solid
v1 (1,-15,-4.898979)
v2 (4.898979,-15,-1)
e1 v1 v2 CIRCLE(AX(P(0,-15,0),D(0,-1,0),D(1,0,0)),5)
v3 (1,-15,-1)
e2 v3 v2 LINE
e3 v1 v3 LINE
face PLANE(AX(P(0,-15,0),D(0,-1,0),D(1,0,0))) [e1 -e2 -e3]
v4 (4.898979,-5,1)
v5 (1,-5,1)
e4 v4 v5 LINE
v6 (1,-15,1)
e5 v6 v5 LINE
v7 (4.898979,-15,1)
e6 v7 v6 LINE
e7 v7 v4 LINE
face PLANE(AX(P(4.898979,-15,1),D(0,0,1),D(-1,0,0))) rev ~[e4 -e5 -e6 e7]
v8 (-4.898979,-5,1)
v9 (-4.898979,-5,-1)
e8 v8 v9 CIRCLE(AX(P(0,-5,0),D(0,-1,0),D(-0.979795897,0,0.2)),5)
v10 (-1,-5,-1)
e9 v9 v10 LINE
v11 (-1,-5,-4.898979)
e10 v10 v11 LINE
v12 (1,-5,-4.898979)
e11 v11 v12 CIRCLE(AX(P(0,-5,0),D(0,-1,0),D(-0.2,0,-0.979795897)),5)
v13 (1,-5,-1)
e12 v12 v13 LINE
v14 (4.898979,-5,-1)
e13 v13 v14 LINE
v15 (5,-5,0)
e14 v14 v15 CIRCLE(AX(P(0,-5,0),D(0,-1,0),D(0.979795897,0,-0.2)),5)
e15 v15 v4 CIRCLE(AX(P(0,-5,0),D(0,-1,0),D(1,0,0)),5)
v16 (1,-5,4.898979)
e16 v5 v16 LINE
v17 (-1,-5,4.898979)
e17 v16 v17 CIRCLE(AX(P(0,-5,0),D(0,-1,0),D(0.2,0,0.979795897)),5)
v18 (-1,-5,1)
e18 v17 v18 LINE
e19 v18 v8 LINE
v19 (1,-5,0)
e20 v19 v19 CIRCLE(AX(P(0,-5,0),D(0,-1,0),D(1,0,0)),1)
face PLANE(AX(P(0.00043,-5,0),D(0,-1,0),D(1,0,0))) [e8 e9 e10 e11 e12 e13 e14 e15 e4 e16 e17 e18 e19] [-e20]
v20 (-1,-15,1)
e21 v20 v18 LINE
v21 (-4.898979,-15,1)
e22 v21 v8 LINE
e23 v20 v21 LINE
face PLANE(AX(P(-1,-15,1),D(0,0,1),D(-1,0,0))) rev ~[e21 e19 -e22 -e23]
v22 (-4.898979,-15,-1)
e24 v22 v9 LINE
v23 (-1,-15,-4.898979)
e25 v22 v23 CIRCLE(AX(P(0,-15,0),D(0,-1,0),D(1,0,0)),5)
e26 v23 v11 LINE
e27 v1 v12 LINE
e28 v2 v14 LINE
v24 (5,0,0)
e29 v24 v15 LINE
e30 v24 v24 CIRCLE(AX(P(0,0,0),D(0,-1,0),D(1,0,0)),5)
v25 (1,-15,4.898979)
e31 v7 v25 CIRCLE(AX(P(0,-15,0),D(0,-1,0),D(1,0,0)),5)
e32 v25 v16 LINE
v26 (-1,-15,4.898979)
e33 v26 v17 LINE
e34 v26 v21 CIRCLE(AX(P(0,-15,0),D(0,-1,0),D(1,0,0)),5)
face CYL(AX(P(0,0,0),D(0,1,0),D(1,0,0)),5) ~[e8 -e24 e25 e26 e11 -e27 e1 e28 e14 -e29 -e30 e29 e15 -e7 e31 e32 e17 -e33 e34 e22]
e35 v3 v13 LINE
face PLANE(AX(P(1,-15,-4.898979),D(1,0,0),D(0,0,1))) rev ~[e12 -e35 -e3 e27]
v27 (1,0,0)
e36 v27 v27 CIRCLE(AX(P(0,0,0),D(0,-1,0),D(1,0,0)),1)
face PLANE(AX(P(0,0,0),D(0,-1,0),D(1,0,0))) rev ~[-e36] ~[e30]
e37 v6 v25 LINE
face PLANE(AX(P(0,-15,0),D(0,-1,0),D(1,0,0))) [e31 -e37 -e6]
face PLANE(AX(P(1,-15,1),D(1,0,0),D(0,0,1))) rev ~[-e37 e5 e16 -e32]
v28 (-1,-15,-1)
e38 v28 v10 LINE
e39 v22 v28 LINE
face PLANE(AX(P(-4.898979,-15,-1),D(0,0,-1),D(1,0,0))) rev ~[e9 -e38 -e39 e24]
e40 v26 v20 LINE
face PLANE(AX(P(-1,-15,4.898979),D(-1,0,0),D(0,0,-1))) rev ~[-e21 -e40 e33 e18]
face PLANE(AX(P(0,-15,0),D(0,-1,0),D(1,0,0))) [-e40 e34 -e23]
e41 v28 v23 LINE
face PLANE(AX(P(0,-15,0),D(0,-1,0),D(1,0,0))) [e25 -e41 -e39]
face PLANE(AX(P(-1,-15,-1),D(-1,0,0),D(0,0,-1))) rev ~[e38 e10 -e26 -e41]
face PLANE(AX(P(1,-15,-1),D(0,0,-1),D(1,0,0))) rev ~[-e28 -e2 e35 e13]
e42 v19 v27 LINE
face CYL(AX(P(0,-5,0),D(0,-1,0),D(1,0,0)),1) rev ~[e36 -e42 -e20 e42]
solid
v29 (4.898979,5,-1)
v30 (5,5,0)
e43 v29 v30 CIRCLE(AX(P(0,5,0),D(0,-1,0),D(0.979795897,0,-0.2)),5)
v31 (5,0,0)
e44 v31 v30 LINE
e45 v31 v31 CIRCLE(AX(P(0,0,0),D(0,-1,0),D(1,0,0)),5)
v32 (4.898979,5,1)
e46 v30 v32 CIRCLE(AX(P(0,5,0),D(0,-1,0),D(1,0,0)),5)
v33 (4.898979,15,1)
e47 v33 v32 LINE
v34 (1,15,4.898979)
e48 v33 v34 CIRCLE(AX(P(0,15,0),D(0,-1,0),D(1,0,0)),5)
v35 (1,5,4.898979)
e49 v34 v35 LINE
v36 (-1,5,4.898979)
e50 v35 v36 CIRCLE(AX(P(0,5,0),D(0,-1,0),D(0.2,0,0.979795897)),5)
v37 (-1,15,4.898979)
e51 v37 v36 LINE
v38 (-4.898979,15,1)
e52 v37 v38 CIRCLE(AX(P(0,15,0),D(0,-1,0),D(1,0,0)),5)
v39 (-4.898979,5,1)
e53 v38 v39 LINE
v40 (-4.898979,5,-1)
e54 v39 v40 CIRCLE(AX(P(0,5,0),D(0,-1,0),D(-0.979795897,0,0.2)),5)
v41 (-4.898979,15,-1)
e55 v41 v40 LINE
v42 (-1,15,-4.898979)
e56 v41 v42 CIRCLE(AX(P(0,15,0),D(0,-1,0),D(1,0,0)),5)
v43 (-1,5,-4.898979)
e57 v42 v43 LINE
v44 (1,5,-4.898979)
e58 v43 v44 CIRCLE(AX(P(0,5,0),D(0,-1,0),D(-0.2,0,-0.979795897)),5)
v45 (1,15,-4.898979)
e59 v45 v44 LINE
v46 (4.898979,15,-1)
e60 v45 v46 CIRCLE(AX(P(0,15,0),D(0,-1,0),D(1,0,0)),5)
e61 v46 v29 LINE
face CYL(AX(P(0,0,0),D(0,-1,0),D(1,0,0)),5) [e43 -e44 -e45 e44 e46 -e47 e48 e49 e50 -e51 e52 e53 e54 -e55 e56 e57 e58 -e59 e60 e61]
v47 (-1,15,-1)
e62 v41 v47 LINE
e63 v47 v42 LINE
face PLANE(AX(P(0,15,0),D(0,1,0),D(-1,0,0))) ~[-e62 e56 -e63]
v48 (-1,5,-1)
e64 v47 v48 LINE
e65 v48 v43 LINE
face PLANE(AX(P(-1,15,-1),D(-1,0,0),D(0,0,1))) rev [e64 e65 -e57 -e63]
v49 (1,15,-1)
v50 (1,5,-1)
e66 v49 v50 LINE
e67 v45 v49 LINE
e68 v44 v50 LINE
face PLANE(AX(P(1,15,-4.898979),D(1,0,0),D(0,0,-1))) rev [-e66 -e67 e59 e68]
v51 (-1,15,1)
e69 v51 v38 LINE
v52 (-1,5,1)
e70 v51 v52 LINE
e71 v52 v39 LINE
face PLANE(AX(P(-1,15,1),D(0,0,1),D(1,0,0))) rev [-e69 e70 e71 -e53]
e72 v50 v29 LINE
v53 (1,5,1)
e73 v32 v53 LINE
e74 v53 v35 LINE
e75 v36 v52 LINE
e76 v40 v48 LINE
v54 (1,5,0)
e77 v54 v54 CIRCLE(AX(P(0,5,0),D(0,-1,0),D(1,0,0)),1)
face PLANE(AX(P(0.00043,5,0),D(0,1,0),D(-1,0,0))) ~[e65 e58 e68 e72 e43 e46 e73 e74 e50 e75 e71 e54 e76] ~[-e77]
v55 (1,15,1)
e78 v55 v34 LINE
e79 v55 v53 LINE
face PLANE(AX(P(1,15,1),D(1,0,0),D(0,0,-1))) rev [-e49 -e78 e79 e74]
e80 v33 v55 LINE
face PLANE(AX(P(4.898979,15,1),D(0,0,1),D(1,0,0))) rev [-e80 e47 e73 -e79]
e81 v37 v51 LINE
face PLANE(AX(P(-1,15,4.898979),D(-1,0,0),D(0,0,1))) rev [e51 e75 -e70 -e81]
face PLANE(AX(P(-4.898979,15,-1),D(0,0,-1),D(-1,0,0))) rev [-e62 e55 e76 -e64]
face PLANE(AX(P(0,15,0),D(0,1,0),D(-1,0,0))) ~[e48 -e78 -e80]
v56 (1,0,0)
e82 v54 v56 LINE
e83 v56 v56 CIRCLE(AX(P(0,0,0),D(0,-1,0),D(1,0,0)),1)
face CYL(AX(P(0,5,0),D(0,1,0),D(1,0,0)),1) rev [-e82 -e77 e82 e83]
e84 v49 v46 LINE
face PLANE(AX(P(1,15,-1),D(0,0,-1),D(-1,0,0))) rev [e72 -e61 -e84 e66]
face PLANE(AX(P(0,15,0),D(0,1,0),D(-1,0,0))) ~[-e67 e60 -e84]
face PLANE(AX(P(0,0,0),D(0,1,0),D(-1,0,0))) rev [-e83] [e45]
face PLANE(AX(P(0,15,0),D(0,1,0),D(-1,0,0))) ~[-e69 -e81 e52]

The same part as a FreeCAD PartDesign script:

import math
import FreeCAD as App
import Part
import Sketcher
Q = App.Units.Quantity

doc = App.newDocument("Part")
body = doc.addObject("PartDesign::Body", "Body")

# Sketch on XZ plane
sketch1 = body.newObject("Sketcher::SketchObject", "Sketch")
sketch1.AttachmentSupport = (doc.getObject("XZ_Plane"), [""])
sketch1.MapMode = "FlatFace"
sketch1.addGeometry(Part.Circle(App.Vector(0, 0, 0), App.Vector(0, 0, 1), 5), False)
sketch1.addConstraint([
    Sketcher.Constraint("Coincident", 0, 3, -1, 1),
    Sketcher.Constraint("Diameter", 0, Q("10 mm")),
])
pad1 = body.newObject("PartDesign::Pad", "Pad")
pad1.Profile = sketch1
pad1.Length = 15

# Sketch on XZ plane
sketch2 = body.newObject("Sketcher::SketchObject", "Sketch001")
sketch2.AttachmentSupport = (doc.getObject("XZ_Plane"), [""])
sketch2.MapMode = "FlatFace"
sketch2.AttachmentOffset = App.Placement(App.Vector(0, 0, 15), App.Rotation())
sketch2.addGeometry([
    Part.ArcOfCircle(Part.Circle(App.Vector(0, 0, 0), App.Vector(0, 0, 1), 5), math.radians(-101.536959), math.radians(-78.463041)),  # 0
    Part.LineSegment(App.Vector(1, -4.898979, 0), App.Vector(1, -1, 0)),  # 1
    Part.LineSegment(App.Vector(1, -1, 0), App.Vector(4.898979, -1, 0)),  # 2
    Part.ArcOfCircle(Part.Circle(App.Vector(0, 0, 0), App.Vector(0, 0, 1), 5), math.radians(-11.536959), math.radians(0)),  # 3
    Part.ArcOfCircle(Part.Circle(App.Vector(0, 0, 0), App.Vector(0, 0, 1), 5), math.radians(0), math.radians(11.536959)),  # 4
    Part.LineSegment(App.Vector(4.898979, 1, 0), App.Vector(1, 1, 0)),  # 5
    Part.LineSegment(App.Vector(1, 1, 0), App.Vector(1, 4.898979, 0)),  # 6
    Part.ArcOfCircle(Part.Circle(App.Vector(0, 0, 0), App.Vector(0, 0, 1), 5), math.radians(78.463041), math.radians(101.536959)),  # 7
    Part.LineSegment(App.Vector(-1, 4.898979, 0), App.Vector(-1, 1, 0)),  # 8
    Part.LineSegment(App.Vector(-1, 1, 0), App.Vector(-4.898979, 1, 0)),  # 9
    Part.ArcOfCircle(Part.Circle(App.Vector(0, 0, 0), App.Vector(0, 0, 1), 5), math.radians(168.463041), math.radians(191.536959)),  # 10
    Part.LineSegment(App.Vector(-4.898979, -1, 0), App.Vector(-1, -1, 0)),  # 11
    Part.LineSegment(App.Vector(-1, -1, 0), App.Vector(-1, -4.898979, 0)),  # 12
], False)
sketch2.addConstraint([
    Sketcher.Constraint("Coincident", 0, 2, 1, 1),
    Sketcher.Constraint("Coincident", 1, 2, 2, 1),
    Sketcher.Constraint("Coincident", 2, 2, 3, 1),
    Sketcher.Constraint("Tangent", 3, 2, 4, 1),
    Sketcher.Constraint("Coincident", 4, 2, 5, 1),
    Sketcher.Constraint("Coincident", 5, 2, 6, 1),
    Sketcher.Constraint("Coincident", 6, 2, 7, 1),
    Sketcher.Constraint("Coincident", 7, 2, 8, 1),
    Sketcher.Constraint("Coincident", 8, 2, 9, 1),
    Sketcher.Constraint("Coincident", 9, 2, 10, 1),
    Sketcher.Constraint("Coincident", 10, 2, 11, 1),
    Sketcher.Constraint("Coincident", 11, 2, 12, 1),
    Sketcher.Constraint("Coincident", 12, 2, 0, 1),
    Sketcher.Constraint("Vertical", 1),
    Sketcher.Constraint("Horizontal", 2),
    Sketcher.Constraint("Horizontal", 5),
    Sketcher.Constraint("Vertical", 6),
    Sketcher.Constraint("Vertical", 8),
    Sketcher.Constraint("Horizontal", 9),
    Sketcher.Constraint("Horizontal", 11),
    Sketcher.Constraint("Vertical", 12),
    Sketcher.Constraint("Coincident", 0, 3, -1, 1),
    Sketcher.Constraint("Coincident", 3, 3, -1, 1),
    Sketcher.Constraint("Coincident", 7, 3, -1, 1),
    Sketcher.Constraint("Coincident", 10, 3, -1, 1),
    Sketcher.Constraint("Equal", 0, 3),
    Sketcher.Constraint("Equal", 3, 4),
    Sketcher.Constraint("Equal", 4, 7),
    Sketcher.Constraint("Equal", 7, 10),
    Sketcher.Constraint("Symmetric", 1, 2, 8, 2, -1, 1),
    Sketcher.Constraint("Symmetric", 5, 2, 11, 2, -1, 1),
    Sketcher.Constraint("Symmetric", 5, 2, 8, 2, -2),
    Sketcher.Constraint("PointOnObject", 3, 2, -1),
    Sketcher.Constraint("Equal", 11, 1),
    Sketcher.Constraint("Radius", 0, Q("5 mm")),
    Sketcher.Constraint("DistanceX", -1, 1, 0, 2, Q("1 mm")),
])
pocket1 = body.newObject("PartDesign::Pocket", "Pocket")
pocket1.Profile = sketch2
pocket1.Length = 10

# Sketch on XZ plane
sketch3 = body.newObject("Sketcher::SketchObject", "Sketch002")
sketch3.AttachmentSupport = (doc.getObject("XZ_Plane"), [""])
sketch3.MapMode = "FlatFace"
sketch3.AttachmentOffset = App.Placement(App.Vector(0, 0, 5), App.Rotation())
sketch3.addGeometry(Part.Circle(App.Vector(0, 0, 0), App.Vector(0, 0, 1), 1), False)
sketch3.addConstraint([
    Sketcher.Constraint("Coincident", 0, 3, -1, 1),
    Sketcher.Constraint("Diameter", 0, Q("2 mm")),
])
pocket2 = body.newObject("PartDesign::Pocket", "Pocket001")
pocket2.Profile = sketch3
pocket2.Type = "ThroughAll"
body2 = doc.addObject("PartDesign::Body", "Body001")
doc.recompute()

mirroring = doc.addObject("Part::Mirroring", "Mirroring")
mirroring.Source = body
mirroring.Base = App.Vector(0, 0, 0)
mirroring.Normal = App.Vector(0, -1, 0)
body2.BaseFeature = mirroring
doc.recompute()
mirroring.Visibility = False

doc.recompute()
